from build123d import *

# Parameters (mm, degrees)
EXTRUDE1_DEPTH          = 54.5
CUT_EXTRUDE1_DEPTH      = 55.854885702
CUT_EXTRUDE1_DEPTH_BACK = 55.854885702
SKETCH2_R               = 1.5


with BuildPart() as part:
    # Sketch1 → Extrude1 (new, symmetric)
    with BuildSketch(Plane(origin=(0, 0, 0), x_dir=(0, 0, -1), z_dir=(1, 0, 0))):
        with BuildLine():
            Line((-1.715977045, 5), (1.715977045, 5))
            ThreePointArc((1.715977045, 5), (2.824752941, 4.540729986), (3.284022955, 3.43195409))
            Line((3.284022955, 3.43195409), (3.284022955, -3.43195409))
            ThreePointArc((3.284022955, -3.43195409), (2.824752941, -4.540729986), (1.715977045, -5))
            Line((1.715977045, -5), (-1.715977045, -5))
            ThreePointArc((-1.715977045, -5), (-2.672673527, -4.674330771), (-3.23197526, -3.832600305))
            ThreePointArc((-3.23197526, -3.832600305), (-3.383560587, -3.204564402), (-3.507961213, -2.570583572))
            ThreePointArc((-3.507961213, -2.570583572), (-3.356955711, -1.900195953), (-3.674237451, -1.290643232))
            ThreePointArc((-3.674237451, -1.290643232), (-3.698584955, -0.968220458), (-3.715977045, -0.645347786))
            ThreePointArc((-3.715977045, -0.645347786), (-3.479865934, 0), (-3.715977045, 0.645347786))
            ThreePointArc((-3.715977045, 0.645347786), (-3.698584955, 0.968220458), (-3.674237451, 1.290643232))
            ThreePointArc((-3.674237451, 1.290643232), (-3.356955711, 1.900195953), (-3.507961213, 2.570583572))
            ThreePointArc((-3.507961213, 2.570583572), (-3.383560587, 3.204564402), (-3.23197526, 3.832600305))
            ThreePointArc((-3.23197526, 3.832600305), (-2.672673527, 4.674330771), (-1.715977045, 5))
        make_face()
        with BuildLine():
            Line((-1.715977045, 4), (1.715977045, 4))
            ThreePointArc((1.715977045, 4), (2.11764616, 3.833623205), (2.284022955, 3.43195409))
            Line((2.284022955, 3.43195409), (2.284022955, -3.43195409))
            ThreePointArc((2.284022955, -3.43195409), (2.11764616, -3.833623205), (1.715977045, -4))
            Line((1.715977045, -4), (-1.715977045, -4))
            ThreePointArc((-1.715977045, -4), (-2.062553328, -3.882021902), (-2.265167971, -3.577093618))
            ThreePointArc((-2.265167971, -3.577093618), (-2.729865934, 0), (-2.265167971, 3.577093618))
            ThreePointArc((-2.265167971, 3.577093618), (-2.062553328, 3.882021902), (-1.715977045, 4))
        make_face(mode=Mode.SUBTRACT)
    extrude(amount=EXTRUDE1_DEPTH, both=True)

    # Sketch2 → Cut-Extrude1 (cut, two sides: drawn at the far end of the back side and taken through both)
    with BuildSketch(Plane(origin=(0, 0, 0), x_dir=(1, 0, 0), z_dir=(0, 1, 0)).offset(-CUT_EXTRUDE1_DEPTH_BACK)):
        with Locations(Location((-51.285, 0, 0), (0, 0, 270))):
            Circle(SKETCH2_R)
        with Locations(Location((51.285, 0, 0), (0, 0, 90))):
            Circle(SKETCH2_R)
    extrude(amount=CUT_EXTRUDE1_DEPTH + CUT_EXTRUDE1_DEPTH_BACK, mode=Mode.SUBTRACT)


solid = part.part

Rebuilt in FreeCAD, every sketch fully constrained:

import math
import FreeCAD as App
import Part
import Sketcher
from FreeCAD import Vector

doc = App.newDocument("Part")
body = doc.addObject("PartDesign::Body", "Body")

sketch1 = doc.addObject("Sketcher::SketchObject", "Sketch")
body.addObject(sketch1)
sketch1.AttachmentSupport = (doc.YZ_Plane, [""])
sketch1.MapMode = "FlatFace"
sketch1.addGeometry([
    Part.LineSegment(Vector(5, -1.7, 0), Vector(5, 1.7, 0)),
    Part.ArcOfCircle(Part.Circle(Vector(3.4, 1.7, 0), Vector(0, 0, 1), 1.6), math.radians(0), math.radians(75)),
    Part.ArcOfCircle(Part.Circle(Vector(0, -11.3, 0), Vector(0, 0, 1), 15), math.radians(75.2), math.radians(80.13)),
    Part.ArcOfCircle(Part.Circle(Vector(2, 4.3, 0), Vector(0, 0, 1), 1), math.radians(-138), math.radians(-57)),
    Part.ArcOfCircle(Part.Circle(Vector(0, -11.3, 0), Vector(0, 0, 1), 15), math.radians(85.06), math.radians(87.53)),
    Part.ArcOfCircle(Part.Circle(Vector(0, 4.5, 0), Vector(0, 0, 1), 1), math.radians(-130), math.radians(-50)),
    Part.ArcOfCircle(Part.Circle(Vector(0, -11.3, 0), Vector(0, 0, 1), 15), math.radians(92.47), math.radians(94.94)),
    Part.ArcOfCircle(Part.Circle(Vector(-2, 4.3, 0), Vector(0, 0, 1), 1), math.radians(-123), math.radians(-42)),
    Part.ArcOfCircle(Part.Circle(Vector(0, -11.3, 0), Vector(0, 0, 1), 15), math.radians(99.87), math.radians(104.8)),
    Part.ArcOfCircle(Part.Circle(Vector(-3.4, 1.7, 0), Vector(0, 0, 1), 1.6), math.radians(105), math.radians(180)),
    Part.LineSegment(Vector(-5, 1.7, 0), Vector(-5, -1.7, 0)),
    Part.ArcOfCircle(Part.Circle(Vector(-3.4, -1.7, 0), Vector(0, 0, 1), 1.6), math.radians(-180), math.radians(-90)),
    Part.LineSegment(Vector(-3.4, -3.3, 0), Vector(3.4, -3.3, 0)),
    Part.ArcOfCircle(Part.Circle(Vector(3.4, -1.7, 0), Vector(0, 0, 1), 1.6), math.radians(-90), math.radians(0)),
    Part.LineSegment(Vector(4, 1.7, 0), Vector(4, -1.7, 0)),
    Part.ArcOfCircle(Part.Circle(Vector(3.4, -1.7, 0), Vector(0, 0, 1), 0.6), math.radians(-90), math.radians(0)),
    Part.LineSegment(Vector(3.4, -2.3, 0), Vector(-3.4, -2.3, 0)),
    Part.ArcOfCircle(Part.Circle(Vector(-3.4, -1.7, 0), Vector(0, 0, 1), 0.6), math.radians(180), math.radians(270)),
    Part.LineSegment(Vector(-4, -1.7, 0), Vector(-4, 1.7, 0)),
    Part.ArcOfCircle(Part.Circle(Vector(-3.4, 1.7, 0), Vector(0, 0, 1), 0.6), math.radians(105), math.radians(180)),
    Part.ArcOfCircle(Part.Circle(Vector(0, -11.3, 0), Vector(0, 0, 1), 14), math.radians(75), math.radians(105)),
    Part.ArcOfCircle(Part.Circle(Vector(3.4, 1.7, 0), Vector(0, 0, 1), 0.6), math.radians(0), math.radians(75)),
], False)
sketch1.addConstraint([
    Sketcher.Constraint("Tangent", 0, 2, 1, 1),
    Sketcher.Constraint("Tangent", 1, 2, 2, 1),
    Sketcher.Constraint("Coincident", 2, 2, 3, 2),
    Sketcher.Constraint("Coincident", 3, 1, 4, 1),
    Sketcher.Constraint("Coincident", 4, 2, 5, 2),
    Sketcher.Constraint("Coincident", 5, 1, 6, 1),
    Sketcher.Constraint("Coincident", 6, 2, 7, 2),
    Sketcher.Constraint("Coincident", 7, 1, 8, 1),
    Sketcher.Constraint("Tangent", 8, 2, 9, 1),
    Sketcher.Constraint("Tangent", 9, 2, 10, 1),
    Sketcher.Constraint("Tangent", 10, 2, 11, 1),
    Sketcher.Constraint("Tangent", 11, 2, 12, 1),
    Sketcher.Constraint("Tangent", 12, 2, 13, 1),
    Sketcher.Constraint("Tangent", 13, 2, 0, 1),
    Sketcher.Constraint("Tangent", 14, 2, 15, 2),
    Sketcher.Constraint("Tangent", 15, 1, 16, 1),
    Sketcher.Constraint("Tangent", 16, 2, 17, 2),
    Sketcher.Constraint("Tangent", 17, 1, 18, 1),
    Sketcher.Constraint("Tangent", 18, 2, 19, 2),
    Sketcher.Constraint("Tangent", 19, 1, 20, 2),
    Sketcher.Constraint("Tangent", 20, 1, 21, 2),
    Sketcher.Constraint("Tangent", 21, 1, 14, 1),
    Sketcher.Constraint("Vertical", 0),
    Sketcher.Constraint("Vertical", 10),
    Sketcher.Constraint("Horizontal", 12),
    Sketcher.Constraint("Vertical", 14),
    Sketcher.Constraint("Horizontal", 16),
    Sketcher.Constraint("Vertical", 18),
    Sketcher.Constraint("Coincident", 4, 3, 2, 3),
    Sketcher.Constraint("Coincident", 6, 3, 2, 3),
    Sketcher.Constraint("Coincident", 8, 3, 2, 3),
    Sketcher.Constraint("Coincident", 15, 3, 13, 3),
    Sketcher.Constraint("Coincident", 17, 3, 11, 3),
    Sketcher.Constraint("Coincident", 19, 3, 9, 3),
    Sketcher.Constraint("Coincident", 20, 3, 2, 3),
    Sketcher.Constraint("Coincident", 21, 3, 1, 3),
    Sketcher.Constraint("Equal", 2, 4),
    Sketcher.Constraint("Equal", 3, 5),
    Sketcher.Constraint("Equal", 4, 6),
    Sketcher.Constraint("Equal", 5, 7),
    Sketcher.Constraint("Equal", 1, 9),
    Sketcher.Constraint("Equal", 9, 11),
    Sketcher.Constraint("Equal", 11, 13),
    Sketcher.Constraint("Symmetric", 1, 3, 11, 3, -1, 1),
    Sketcher.Constraint("Symmetric", 3, 3, 7, 3, -2),
    Sketcher.Constraint("Symmetric", 4, 2, 5, 1, -2),
    Sketcher.Constraint("Radius", 2, 15.0),
    Sketcher.Constraint("Radius", 3, 1.0),
    Sketcher.Constraint("Radius", 20, 14.0),
    Sketcher.Constraint("DistanceX", -1, 1, 0, 2, 5.0),
    Sketcher.Constraint("DistanceY", 11, 2, 19, 3, 5.0),
    Sketcher.Constraint("DistanceY", 2, 3, 5, 3, 15.75),
    Sketcher.Constraint("Radius", 1, 1.568046),
    Sketcher.Constraint("DistanceY", 11, 3, 7, 3, 6.0646),
    Sketcher.Constraint("DistanceY", -1, 1, 2, 2, 3.507961),
])
pad1 = doc.addObject("PartDesign::Pad", "Pad")
body.addObject(pad1)
pad1.Profile = sketch1
pad1.Length = 109
pad1.Midplane = True

sketch2 = doc.addObject("Sketcher::SketchObject", "Sketch001")
body.addObject(sketch2)
sketch2.AttachmentSupport = (doc.XZ_Plane, [""])
sketch2.MapMode = "FlatFace"
sketch2.addGeometry([
    Part.Circle(Vector(-51.3, 0, 0), Vector(0, 0, 1), 1.5),
    Part.Circle(Vector(51.3, 0, 0), Vector(0, 0, 1), 1.5),
], False)
sketch2.addConstraint([
    Sketcher.Constraint("Equal", 0, 1),
    Sketcher.Constraint("Symmetric", 0, 3, 1, 3, -1, 1),
    Sketcher.Constraint("PointOnObject", 0, 3, -1),
    Sketcher.Constraint("Diameter", 0, 3.0),
    Sketcher.Constraint("DistanceX", 0, 3, 1, 3, 102.57),
])
pocket1 = doc.addObject("PartDesign::Pocket", "Pocket")
body.addObject(pocket1)
pocket1.Profile = sketch2
pocket1.Type = "ThroughAll"
pocket1.Midplane = True

doc.recompute()
